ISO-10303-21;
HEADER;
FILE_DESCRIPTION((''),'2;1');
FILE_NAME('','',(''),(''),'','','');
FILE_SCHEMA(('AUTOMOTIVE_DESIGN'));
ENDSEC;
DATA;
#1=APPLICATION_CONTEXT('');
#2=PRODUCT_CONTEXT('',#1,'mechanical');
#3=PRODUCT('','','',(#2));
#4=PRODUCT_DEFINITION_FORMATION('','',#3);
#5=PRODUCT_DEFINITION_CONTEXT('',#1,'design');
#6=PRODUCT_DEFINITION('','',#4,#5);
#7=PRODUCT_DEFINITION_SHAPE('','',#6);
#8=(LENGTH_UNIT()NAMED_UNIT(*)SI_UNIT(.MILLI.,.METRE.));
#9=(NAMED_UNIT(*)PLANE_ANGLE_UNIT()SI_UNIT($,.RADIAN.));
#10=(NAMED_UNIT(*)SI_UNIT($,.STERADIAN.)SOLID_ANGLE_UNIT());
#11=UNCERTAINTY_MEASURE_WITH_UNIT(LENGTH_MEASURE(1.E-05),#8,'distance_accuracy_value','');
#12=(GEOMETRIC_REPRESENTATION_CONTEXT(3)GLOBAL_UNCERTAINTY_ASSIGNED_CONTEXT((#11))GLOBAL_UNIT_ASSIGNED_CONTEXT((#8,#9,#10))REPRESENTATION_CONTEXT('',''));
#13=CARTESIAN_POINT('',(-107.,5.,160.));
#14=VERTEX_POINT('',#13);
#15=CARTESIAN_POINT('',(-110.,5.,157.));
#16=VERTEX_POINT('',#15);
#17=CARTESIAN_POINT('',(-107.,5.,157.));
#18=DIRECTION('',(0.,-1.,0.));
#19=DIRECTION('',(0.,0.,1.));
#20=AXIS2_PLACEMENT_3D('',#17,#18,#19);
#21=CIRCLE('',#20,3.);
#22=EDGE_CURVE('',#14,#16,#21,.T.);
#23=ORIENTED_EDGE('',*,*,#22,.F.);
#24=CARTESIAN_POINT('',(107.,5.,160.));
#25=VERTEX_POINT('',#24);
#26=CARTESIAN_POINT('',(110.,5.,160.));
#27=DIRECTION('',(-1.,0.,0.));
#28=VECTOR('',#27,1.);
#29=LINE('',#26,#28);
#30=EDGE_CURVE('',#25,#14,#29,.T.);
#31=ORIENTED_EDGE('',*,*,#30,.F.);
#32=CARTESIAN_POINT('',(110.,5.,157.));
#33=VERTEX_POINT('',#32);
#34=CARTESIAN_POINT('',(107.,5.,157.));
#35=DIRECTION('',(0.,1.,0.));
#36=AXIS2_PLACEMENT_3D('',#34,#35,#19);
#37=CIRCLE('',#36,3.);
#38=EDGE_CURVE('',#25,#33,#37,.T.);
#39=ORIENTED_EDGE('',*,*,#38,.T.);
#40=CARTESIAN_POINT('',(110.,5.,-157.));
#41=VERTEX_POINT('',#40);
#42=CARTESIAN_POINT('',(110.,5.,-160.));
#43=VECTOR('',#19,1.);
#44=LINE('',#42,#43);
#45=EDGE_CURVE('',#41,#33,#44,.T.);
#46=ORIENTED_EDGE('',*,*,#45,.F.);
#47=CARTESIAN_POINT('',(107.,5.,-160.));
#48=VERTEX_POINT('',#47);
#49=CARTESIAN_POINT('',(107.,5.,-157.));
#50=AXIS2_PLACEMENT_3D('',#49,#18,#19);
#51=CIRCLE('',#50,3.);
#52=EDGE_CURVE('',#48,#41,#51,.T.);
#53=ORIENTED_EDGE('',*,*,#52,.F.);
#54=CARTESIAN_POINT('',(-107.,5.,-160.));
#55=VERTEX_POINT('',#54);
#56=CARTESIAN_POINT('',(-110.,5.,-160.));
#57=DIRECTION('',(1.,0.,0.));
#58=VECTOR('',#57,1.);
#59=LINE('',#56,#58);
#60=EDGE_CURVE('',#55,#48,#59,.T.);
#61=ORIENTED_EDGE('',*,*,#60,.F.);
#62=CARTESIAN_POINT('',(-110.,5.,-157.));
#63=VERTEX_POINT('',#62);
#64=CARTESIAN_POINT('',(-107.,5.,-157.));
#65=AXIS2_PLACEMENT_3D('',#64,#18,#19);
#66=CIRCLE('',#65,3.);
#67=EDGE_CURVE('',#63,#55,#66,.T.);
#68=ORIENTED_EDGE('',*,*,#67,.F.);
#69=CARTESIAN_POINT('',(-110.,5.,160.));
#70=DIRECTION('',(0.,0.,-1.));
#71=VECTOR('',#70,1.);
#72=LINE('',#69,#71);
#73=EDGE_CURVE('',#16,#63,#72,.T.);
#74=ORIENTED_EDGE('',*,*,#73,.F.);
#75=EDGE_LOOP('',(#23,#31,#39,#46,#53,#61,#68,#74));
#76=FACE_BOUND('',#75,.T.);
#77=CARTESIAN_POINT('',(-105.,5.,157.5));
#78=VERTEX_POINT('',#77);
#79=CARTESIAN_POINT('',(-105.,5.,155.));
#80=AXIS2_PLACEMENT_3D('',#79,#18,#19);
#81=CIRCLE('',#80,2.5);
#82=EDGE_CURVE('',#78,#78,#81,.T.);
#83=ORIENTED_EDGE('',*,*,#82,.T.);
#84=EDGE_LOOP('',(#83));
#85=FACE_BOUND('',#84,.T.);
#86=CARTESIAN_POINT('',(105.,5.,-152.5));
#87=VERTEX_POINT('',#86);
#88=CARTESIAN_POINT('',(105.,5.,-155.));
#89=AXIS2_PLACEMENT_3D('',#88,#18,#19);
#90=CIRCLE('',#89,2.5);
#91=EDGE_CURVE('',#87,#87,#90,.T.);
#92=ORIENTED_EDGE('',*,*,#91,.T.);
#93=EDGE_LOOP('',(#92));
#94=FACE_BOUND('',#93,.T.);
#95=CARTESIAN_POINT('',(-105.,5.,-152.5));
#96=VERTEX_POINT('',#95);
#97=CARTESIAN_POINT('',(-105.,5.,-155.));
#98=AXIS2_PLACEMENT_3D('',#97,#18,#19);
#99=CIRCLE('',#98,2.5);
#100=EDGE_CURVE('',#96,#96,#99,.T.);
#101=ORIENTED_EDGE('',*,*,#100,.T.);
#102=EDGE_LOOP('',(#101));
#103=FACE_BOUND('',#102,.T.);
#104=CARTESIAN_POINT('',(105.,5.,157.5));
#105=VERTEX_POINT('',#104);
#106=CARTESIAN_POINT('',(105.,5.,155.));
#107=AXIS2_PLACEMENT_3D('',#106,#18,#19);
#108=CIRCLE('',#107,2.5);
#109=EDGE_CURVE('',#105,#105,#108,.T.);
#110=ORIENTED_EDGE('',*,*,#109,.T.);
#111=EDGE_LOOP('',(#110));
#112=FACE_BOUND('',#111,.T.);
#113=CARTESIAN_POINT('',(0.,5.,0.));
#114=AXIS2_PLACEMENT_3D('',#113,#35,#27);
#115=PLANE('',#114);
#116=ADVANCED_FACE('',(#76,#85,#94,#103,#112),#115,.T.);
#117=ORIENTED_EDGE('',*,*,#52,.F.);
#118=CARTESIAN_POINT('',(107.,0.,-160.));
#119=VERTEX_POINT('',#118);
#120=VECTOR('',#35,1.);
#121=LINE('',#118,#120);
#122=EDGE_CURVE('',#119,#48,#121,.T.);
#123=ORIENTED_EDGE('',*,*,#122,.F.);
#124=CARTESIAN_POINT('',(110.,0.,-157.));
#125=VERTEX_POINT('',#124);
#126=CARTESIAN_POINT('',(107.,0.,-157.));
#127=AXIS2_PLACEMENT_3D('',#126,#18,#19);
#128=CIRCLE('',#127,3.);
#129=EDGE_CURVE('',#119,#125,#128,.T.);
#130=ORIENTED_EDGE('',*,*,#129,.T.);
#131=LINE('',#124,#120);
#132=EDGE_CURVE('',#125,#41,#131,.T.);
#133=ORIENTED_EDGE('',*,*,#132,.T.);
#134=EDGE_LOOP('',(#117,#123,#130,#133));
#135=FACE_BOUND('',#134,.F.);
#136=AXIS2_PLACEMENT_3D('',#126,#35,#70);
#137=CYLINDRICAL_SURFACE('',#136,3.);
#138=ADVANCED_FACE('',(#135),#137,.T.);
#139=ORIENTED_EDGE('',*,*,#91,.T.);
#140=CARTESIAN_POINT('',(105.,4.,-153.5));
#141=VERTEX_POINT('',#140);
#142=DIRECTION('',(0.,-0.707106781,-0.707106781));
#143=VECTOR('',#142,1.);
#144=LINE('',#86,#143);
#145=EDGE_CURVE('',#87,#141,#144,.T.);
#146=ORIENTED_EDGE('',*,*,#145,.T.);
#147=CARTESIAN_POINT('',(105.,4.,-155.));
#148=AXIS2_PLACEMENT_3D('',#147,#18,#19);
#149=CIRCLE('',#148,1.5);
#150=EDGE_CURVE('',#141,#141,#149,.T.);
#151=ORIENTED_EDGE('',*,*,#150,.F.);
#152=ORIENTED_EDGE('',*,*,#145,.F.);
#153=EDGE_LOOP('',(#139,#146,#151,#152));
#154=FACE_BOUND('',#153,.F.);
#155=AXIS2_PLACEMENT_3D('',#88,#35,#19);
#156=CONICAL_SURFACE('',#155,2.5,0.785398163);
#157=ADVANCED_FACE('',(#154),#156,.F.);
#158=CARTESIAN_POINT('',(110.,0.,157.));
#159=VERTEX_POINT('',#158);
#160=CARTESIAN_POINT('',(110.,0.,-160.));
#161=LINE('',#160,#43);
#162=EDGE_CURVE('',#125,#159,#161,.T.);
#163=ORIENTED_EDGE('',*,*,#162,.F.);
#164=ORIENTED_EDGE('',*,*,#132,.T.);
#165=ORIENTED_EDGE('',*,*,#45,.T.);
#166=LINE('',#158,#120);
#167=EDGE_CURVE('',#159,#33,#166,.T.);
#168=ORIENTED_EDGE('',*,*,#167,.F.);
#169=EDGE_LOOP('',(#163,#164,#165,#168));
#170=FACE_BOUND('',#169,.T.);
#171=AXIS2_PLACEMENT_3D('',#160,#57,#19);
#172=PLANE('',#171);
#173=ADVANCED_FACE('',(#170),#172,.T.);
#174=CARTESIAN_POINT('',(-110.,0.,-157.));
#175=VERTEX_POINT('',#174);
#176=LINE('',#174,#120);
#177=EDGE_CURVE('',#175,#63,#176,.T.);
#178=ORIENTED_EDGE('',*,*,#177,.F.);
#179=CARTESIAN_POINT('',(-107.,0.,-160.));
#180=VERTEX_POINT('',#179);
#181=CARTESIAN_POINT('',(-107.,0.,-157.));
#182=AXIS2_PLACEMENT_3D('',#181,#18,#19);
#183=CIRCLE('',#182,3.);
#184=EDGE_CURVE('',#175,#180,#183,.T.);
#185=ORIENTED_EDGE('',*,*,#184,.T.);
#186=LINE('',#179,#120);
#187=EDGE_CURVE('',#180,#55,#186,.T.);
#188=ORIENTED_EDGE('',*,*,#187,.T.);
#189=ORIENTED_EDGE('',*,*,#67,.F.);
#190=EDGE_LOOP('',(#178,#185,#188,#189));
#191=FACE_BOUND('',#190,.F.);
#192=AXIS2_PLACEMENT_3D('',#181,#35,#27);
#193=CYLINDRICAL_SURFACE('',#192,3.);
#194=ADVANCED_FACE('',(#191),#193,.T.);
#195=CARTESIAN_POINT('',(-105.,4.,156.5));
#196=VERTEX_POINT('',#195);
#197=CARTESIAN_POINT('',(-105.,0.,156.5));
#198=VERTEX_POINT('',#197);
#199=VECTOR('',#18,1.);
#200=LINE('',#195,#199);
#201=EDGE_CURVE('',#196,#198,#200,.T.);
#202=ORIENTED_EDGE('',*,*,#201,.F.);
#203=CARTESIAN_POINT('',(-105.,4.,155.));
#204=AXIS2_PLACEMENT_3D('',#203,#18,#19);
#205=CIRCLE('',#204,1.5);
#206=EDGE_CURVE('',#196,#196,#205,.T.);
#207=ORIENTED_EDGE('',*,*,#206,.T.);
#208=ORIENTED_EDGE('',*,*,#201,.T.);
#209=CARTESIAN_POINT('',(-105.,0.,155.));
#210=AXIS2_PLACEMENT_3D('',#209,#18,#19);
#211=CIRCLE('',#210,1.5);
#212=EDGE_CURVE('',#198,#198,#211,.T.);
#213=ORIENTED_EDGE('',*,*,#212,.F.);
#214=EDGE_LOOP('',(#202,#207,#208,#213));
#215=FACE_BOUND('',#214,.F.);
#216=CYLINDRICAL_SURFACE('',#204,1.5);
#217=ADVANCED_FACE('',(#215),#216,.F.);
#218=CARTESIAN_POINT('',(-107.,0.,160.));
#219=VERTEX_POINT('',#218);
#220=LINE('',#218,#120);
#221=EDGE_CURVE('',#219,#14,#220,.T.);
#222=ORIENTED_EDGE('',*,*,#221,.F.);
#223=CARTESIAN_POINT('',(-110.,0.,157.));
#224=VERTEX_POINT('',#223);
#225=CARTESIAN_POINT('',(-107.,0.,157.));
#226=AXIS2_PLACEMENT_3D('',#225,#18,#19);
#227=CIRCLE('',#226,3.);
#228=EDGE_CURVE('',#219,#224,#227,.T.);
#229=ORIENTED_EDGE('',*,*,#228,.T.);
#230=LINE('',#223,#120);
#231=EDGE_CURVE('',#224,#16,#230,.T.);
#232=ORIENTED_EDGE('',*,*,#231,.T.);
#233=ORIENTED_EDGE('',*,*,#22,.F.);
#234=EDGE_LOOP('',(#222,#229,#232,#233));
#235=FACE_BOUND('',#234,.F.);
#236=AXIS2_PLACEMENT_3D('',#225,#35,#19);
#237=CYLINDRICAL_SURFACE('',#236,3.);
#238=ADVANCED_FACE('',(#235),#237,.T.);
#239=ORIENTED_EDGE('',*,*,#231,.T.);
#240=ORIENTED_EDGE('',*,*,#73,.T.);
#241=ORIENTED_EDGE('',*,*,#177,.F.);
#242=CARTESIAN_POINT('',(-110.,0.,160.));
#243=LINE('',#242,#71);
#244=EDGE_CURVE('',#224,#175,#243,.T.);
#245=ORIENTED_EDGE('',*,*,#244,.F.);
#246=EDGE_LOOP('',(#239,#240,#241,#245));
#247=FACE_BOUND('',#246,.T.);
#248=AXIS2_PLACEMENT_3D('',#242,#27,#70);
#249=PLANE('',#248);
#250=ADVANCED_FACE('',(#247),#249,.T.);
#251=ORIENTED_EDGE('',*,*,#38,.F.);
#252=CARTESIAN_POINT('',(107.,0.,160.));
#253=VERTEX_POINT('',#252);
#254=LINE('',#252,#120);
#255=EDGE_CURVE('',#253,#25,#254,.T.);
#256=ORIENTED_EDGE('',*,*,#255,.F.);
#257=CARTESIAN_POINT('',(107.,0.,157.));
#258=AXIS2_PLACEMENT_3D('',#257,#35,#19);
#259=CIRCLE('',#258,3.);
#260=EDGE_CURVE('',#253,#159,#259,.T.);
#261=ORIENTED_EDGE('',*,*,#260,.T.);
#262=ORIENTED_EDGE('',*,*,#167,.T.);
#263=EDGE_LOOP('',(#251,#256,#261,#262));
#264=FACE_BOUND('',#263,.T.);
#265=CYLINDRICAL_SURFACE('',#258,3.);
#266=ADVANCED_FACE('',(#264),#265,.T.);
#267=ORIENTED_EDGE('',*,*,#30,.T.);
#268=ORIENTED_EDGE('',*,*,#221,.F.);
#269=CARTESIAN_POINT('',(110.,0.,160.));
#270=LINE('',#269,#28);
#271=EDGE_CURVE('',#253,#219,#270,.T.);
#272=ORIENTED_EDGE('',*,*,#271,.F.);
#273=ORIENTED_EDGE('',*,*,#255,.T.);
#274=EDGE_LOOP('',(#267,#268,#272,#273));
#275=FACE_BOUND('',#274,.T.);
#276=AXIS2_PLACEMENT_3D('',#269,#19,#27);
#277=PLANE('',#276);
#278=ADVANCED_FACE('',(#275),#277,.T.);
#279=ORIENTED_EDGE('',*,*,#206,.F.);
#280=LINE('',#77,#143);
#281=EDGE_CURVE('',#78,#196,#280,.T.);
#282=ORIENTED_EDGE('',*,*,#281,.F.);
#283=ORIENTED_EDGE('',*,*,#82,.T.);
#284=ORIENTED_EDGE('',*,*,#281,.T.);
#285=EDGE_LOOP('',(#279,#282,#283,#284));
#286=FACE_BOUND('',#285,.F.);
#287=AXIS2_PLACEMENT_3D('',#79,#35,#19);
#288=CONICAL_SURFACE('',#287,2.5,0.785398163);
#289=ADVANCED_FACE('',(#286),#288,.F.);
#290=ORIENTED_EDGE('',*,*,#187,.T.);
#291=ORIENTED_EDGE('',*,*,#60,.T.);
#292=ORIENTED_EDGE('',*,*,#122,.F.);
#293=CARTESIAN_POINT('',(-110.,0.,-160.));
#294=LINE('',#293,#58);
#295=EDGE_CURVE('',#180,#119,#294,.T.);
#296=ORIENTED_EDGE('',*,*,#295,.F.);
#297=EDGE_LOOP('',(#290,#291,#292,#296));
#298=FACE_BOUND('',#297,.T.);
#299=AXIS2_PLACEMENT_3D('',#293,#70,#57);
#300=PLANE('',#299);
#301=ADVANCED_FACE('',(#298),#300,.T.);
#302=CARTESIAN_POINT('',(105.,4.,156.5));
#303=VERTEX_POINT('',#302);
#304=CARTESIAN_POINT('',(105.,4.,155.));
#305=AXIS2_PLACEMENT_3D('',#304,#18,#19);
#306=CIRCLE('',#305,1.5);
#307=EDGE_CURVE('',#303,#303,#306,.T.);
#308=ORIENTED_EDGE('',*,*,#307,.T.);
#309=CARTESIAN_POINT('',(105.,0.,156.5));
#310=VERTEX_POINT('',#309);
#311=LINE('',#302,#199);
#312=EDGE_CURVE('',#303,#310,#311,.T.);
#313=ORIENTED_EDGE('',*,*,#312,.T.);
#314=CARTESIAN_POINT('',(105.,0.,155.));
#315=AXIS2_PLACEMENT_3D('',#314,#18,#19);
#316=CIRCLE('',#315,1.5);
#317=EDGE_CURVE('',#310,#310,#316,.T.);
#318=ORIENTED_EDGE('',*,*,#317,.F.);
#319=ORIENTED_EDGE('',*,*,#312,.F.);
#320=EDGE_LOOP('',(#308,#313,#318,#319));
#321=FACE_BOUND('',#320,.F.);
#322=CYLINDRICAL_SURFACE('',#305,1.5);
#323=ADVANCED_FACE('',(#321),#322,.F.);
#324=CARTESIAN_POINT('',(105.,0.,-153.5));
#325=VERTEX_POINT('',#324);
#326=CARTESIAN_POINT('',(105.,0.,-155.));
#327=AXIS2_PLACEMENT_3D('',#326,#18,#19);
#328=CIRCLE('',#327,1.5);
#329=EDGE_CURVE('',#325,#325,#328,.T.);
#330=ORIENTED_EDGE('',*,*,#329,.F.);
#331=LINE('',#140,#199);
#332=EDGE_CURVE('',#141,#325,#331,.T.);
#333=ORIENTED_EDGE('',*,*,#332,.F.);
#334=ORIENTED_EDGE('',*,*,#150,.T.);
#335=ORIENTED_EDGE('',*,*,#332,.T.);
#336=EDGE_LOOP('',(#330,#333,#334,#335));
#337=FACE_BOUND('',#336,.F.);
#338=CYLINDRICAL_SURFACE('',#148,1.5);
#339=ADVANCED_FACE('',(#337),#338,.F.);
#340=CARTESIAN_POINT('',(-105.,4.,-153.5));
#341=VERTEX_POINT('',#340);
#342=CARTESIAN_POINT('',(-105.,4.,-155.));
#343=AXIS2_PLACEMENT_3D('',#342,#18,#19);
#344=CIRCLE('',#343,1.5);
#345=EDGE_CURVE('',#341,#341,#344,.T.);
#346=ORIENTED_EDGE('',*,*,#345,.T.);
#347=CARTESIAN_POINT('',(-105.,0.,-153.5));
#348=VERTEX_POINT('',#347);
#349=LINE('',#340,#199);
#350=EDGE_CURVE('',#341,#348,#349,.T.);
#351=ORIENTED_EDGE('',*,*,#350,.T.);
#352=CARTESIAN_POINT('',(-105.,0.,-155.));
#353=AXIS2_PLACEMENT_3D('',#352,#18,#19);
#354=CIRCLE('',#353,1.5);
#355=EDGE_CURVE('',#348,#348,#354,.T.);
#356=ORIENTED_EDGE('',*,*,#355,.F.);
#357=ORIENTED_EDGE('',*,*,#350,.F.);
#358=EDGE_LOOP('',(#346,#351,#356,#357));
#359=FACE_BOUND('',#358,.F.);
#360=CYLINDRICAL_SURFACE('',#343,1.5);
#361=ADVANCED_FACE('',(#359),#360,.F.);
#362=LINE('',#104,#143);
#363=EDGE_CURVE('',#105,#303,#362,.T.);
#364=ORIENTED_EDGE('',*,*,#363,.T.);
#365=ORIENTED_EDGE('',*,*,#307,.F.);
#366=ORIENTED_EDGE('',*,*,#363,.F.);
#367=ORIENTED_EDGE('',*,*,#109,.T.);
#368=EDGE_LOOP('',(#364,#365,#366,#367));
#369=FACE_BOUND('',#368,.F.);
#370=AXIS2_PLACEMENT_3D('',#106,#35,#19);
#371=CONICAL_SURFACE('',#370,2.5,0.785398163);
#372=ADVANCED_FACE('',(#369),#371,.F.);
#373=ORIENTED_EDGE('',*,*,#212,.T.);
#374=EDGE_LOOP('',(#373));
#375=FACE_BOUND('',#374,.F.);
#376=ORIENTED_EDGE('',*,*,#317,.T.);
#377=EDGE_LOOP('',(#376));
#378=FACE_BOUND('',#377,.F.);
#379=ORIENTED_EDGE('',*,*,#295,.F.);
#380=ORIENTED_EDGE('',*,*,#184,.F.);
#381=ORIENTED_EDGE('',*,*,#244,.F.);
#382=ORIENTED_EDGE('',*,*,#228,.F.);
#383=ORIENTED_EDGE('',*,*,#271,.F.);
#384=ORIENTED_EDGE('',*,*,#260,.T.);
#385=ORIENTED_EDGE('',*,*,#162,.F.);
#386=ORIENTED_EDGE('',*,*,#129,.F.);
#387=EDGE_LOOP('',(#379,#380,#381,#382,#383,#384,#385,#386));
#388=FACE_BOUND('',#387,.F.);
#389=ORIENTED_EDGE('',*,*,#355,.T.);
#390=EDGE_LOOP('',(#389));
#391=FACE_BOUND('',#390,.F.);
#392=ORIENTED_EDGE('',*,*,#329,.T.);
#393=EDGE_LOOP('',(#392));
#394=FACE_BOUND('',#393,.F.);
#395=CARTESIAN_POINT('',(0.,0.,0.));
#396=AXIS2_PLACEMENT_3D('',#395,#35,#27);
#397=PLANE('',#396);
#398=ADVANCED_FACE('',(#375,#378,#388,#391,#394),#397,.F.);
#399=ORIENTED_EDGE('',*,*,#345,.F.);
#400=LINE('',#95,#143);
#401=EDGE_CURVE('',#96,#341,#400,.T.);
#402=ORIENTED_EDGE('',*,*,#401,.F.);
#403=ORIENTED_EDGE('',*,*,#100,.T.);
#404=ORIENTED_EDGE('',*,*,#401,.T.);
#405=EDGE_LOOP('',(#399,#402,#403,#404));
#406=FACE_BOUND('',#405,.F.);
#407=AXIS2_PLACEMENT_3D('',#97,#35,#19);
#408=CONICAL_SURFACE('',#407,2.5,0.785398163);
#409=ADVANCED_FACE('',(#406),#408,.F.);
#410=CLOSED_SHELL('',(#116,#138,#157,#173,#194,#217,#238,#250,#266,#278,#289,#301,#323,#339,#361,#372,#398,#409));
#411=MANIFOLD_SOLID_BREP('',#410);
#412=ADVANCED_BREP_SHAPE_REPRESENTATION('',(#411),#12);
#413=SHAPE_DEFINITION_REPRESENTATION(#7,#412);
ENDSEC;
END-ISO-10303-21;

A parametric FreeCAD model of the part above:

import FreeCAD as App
import Part
import Sketcher

V = App.Vector


def edges_at(feature, points):
    """Names of the edges that pass closest to the given points."""
    edges = feature.Shape.Edges
    near = lambda p: min(range(len(edges)), key=lambda i: edges[i].distToShape(Part.Vertex(*p))[0])
    return sorted({f"Edge{near(p) + 1}" for p in points})


def add_polygon(sketch, points):
    """Adds a closed chain of lines whose ends are joined by coincident constraints."""
    first, n = sketch.GeometryCount, len(points)
    for a, b in zip(points, points[1:] + points[:1]):
        sketch.addGeometry(Part.LineSegment(App.Vector(*a, 0), App.Vector(*b, 0)), False)
    for i in range(n):
        sketch.addConstraint(Sketcher.Constraint("Coincident", first + i, 2, first + (i + 1) % n, 1))

doc = App.newDocument("Part")
body = doc.addObject("PartDesign::Body", "Body")

# Sketch on XZ plane
sketch1 = body.newObject("Sketcher::SketchObject", "Sketch")
sketch1.AttachmentSupport = (doc.getObject("XZ_Plane"), [""])
sketch1.MapMode = "FlatFace"
add_polygon(sketch1, [(-110, 160), (110, 160), (110, -160), (-110, -160)])  # lines 0-3
sketch1.addConstraint([
    Sketcher.Constraint("Horizontal", 0),
    Sketcher.Constraint("Vertical", 1),
    Sketcher.Constraint("Horizontal", 2),
    Sketcher.Constraint("Vertical", 3),
    Sketcher.Constraint("Symmetric", 0, 2, 2, 2, -1, 1),
    Sketcher.Constraint("DistanceX", 0, 1, 0, 2, 220.0),
    Sketcher.Constraint("DistanceY", 1, 2, 1, 1, 320.0),
])
pad1 = body.newObject("PartDesign::Pad", "Pad")
pad1.Profile = sketch1
pad1.Length = 5
pad1.Reversed = True
doc.recompute()

fillet = body.newObject("PartDesign::Fillet", "Fillet")
fillet.Base = (pad1, edges_at(pad1, [
    (110, 2.5, 160),
    (-110, 2.5, 160),
    (110, 2.5, -160),
    (-110, 2.5, -160),
]))
fillet.Radius = 3

# Sketch on XZ plane
sketch2 = body.newObject("Sketcher::SketchObject", "Sketch001")
sketch2.AttachmentSupport = (doc.getObject("XZ_Plane"), [""])
sketch2.MapMode = "FlatFace"
sketch2.AttachmentOffset = App.Placement(V(0, 0, -5), App.Rotation())
sketch2.addGeometry([
    Part.Circle(V(105, 155, 0), V(0, 0, 1), 1.5),
    Part.Circle(V(-105, 155, 0), V(0, 0, 1), 1.5),
    Part.Circle(V(-105, -155, 0), V(0, 0, 1), 1.5),
    Part.Circle(V(105, -155, 0), V(0, 0, 1), 1.5),
], False)
sketch2.addConstraint([
    Sketcher.Constraint("Equal", 0, 1),
    Sketcher.Constraint("Equal", 1, 2),
    Sketcher.Constraint("Equal", 2, 3),
    Sketcher.Constraint("Symmetric", 0, 3, 2, 3, -1, 1),
    Sketcher.Constraint("Symmetric", 1, 3, 3, 3, -1, 1),
    Sketcher.Constraint("Symmetric", 0, 3, 1, 3, -2),
    Sketcher.Constraint("Diameter", 0, 3.0),
    Sketcher.Constraint("DistanceX", -1, 1, 0, 3, 105.0),
    Sketcher.Constraint("DistanceY", -1, 1, 0, 3, 155.0),
])
doc.recompute()
hole = body.newObject("PartDesign::Hole", "Hole")
hole.Profile = sketch2
hole.ThreadType = "None"
hole.Diameter = 3
hole.DepthType = "Dimension"
hole.Depth = 8.8
hole.DrillPoint = "Flat"
hole.HoleCutType = "Countersink"
hole.HoleCutDiameter = 5
hole.HoleCutCountersinkAngle = 90
hole.Reversed = True

doc.recompute()
